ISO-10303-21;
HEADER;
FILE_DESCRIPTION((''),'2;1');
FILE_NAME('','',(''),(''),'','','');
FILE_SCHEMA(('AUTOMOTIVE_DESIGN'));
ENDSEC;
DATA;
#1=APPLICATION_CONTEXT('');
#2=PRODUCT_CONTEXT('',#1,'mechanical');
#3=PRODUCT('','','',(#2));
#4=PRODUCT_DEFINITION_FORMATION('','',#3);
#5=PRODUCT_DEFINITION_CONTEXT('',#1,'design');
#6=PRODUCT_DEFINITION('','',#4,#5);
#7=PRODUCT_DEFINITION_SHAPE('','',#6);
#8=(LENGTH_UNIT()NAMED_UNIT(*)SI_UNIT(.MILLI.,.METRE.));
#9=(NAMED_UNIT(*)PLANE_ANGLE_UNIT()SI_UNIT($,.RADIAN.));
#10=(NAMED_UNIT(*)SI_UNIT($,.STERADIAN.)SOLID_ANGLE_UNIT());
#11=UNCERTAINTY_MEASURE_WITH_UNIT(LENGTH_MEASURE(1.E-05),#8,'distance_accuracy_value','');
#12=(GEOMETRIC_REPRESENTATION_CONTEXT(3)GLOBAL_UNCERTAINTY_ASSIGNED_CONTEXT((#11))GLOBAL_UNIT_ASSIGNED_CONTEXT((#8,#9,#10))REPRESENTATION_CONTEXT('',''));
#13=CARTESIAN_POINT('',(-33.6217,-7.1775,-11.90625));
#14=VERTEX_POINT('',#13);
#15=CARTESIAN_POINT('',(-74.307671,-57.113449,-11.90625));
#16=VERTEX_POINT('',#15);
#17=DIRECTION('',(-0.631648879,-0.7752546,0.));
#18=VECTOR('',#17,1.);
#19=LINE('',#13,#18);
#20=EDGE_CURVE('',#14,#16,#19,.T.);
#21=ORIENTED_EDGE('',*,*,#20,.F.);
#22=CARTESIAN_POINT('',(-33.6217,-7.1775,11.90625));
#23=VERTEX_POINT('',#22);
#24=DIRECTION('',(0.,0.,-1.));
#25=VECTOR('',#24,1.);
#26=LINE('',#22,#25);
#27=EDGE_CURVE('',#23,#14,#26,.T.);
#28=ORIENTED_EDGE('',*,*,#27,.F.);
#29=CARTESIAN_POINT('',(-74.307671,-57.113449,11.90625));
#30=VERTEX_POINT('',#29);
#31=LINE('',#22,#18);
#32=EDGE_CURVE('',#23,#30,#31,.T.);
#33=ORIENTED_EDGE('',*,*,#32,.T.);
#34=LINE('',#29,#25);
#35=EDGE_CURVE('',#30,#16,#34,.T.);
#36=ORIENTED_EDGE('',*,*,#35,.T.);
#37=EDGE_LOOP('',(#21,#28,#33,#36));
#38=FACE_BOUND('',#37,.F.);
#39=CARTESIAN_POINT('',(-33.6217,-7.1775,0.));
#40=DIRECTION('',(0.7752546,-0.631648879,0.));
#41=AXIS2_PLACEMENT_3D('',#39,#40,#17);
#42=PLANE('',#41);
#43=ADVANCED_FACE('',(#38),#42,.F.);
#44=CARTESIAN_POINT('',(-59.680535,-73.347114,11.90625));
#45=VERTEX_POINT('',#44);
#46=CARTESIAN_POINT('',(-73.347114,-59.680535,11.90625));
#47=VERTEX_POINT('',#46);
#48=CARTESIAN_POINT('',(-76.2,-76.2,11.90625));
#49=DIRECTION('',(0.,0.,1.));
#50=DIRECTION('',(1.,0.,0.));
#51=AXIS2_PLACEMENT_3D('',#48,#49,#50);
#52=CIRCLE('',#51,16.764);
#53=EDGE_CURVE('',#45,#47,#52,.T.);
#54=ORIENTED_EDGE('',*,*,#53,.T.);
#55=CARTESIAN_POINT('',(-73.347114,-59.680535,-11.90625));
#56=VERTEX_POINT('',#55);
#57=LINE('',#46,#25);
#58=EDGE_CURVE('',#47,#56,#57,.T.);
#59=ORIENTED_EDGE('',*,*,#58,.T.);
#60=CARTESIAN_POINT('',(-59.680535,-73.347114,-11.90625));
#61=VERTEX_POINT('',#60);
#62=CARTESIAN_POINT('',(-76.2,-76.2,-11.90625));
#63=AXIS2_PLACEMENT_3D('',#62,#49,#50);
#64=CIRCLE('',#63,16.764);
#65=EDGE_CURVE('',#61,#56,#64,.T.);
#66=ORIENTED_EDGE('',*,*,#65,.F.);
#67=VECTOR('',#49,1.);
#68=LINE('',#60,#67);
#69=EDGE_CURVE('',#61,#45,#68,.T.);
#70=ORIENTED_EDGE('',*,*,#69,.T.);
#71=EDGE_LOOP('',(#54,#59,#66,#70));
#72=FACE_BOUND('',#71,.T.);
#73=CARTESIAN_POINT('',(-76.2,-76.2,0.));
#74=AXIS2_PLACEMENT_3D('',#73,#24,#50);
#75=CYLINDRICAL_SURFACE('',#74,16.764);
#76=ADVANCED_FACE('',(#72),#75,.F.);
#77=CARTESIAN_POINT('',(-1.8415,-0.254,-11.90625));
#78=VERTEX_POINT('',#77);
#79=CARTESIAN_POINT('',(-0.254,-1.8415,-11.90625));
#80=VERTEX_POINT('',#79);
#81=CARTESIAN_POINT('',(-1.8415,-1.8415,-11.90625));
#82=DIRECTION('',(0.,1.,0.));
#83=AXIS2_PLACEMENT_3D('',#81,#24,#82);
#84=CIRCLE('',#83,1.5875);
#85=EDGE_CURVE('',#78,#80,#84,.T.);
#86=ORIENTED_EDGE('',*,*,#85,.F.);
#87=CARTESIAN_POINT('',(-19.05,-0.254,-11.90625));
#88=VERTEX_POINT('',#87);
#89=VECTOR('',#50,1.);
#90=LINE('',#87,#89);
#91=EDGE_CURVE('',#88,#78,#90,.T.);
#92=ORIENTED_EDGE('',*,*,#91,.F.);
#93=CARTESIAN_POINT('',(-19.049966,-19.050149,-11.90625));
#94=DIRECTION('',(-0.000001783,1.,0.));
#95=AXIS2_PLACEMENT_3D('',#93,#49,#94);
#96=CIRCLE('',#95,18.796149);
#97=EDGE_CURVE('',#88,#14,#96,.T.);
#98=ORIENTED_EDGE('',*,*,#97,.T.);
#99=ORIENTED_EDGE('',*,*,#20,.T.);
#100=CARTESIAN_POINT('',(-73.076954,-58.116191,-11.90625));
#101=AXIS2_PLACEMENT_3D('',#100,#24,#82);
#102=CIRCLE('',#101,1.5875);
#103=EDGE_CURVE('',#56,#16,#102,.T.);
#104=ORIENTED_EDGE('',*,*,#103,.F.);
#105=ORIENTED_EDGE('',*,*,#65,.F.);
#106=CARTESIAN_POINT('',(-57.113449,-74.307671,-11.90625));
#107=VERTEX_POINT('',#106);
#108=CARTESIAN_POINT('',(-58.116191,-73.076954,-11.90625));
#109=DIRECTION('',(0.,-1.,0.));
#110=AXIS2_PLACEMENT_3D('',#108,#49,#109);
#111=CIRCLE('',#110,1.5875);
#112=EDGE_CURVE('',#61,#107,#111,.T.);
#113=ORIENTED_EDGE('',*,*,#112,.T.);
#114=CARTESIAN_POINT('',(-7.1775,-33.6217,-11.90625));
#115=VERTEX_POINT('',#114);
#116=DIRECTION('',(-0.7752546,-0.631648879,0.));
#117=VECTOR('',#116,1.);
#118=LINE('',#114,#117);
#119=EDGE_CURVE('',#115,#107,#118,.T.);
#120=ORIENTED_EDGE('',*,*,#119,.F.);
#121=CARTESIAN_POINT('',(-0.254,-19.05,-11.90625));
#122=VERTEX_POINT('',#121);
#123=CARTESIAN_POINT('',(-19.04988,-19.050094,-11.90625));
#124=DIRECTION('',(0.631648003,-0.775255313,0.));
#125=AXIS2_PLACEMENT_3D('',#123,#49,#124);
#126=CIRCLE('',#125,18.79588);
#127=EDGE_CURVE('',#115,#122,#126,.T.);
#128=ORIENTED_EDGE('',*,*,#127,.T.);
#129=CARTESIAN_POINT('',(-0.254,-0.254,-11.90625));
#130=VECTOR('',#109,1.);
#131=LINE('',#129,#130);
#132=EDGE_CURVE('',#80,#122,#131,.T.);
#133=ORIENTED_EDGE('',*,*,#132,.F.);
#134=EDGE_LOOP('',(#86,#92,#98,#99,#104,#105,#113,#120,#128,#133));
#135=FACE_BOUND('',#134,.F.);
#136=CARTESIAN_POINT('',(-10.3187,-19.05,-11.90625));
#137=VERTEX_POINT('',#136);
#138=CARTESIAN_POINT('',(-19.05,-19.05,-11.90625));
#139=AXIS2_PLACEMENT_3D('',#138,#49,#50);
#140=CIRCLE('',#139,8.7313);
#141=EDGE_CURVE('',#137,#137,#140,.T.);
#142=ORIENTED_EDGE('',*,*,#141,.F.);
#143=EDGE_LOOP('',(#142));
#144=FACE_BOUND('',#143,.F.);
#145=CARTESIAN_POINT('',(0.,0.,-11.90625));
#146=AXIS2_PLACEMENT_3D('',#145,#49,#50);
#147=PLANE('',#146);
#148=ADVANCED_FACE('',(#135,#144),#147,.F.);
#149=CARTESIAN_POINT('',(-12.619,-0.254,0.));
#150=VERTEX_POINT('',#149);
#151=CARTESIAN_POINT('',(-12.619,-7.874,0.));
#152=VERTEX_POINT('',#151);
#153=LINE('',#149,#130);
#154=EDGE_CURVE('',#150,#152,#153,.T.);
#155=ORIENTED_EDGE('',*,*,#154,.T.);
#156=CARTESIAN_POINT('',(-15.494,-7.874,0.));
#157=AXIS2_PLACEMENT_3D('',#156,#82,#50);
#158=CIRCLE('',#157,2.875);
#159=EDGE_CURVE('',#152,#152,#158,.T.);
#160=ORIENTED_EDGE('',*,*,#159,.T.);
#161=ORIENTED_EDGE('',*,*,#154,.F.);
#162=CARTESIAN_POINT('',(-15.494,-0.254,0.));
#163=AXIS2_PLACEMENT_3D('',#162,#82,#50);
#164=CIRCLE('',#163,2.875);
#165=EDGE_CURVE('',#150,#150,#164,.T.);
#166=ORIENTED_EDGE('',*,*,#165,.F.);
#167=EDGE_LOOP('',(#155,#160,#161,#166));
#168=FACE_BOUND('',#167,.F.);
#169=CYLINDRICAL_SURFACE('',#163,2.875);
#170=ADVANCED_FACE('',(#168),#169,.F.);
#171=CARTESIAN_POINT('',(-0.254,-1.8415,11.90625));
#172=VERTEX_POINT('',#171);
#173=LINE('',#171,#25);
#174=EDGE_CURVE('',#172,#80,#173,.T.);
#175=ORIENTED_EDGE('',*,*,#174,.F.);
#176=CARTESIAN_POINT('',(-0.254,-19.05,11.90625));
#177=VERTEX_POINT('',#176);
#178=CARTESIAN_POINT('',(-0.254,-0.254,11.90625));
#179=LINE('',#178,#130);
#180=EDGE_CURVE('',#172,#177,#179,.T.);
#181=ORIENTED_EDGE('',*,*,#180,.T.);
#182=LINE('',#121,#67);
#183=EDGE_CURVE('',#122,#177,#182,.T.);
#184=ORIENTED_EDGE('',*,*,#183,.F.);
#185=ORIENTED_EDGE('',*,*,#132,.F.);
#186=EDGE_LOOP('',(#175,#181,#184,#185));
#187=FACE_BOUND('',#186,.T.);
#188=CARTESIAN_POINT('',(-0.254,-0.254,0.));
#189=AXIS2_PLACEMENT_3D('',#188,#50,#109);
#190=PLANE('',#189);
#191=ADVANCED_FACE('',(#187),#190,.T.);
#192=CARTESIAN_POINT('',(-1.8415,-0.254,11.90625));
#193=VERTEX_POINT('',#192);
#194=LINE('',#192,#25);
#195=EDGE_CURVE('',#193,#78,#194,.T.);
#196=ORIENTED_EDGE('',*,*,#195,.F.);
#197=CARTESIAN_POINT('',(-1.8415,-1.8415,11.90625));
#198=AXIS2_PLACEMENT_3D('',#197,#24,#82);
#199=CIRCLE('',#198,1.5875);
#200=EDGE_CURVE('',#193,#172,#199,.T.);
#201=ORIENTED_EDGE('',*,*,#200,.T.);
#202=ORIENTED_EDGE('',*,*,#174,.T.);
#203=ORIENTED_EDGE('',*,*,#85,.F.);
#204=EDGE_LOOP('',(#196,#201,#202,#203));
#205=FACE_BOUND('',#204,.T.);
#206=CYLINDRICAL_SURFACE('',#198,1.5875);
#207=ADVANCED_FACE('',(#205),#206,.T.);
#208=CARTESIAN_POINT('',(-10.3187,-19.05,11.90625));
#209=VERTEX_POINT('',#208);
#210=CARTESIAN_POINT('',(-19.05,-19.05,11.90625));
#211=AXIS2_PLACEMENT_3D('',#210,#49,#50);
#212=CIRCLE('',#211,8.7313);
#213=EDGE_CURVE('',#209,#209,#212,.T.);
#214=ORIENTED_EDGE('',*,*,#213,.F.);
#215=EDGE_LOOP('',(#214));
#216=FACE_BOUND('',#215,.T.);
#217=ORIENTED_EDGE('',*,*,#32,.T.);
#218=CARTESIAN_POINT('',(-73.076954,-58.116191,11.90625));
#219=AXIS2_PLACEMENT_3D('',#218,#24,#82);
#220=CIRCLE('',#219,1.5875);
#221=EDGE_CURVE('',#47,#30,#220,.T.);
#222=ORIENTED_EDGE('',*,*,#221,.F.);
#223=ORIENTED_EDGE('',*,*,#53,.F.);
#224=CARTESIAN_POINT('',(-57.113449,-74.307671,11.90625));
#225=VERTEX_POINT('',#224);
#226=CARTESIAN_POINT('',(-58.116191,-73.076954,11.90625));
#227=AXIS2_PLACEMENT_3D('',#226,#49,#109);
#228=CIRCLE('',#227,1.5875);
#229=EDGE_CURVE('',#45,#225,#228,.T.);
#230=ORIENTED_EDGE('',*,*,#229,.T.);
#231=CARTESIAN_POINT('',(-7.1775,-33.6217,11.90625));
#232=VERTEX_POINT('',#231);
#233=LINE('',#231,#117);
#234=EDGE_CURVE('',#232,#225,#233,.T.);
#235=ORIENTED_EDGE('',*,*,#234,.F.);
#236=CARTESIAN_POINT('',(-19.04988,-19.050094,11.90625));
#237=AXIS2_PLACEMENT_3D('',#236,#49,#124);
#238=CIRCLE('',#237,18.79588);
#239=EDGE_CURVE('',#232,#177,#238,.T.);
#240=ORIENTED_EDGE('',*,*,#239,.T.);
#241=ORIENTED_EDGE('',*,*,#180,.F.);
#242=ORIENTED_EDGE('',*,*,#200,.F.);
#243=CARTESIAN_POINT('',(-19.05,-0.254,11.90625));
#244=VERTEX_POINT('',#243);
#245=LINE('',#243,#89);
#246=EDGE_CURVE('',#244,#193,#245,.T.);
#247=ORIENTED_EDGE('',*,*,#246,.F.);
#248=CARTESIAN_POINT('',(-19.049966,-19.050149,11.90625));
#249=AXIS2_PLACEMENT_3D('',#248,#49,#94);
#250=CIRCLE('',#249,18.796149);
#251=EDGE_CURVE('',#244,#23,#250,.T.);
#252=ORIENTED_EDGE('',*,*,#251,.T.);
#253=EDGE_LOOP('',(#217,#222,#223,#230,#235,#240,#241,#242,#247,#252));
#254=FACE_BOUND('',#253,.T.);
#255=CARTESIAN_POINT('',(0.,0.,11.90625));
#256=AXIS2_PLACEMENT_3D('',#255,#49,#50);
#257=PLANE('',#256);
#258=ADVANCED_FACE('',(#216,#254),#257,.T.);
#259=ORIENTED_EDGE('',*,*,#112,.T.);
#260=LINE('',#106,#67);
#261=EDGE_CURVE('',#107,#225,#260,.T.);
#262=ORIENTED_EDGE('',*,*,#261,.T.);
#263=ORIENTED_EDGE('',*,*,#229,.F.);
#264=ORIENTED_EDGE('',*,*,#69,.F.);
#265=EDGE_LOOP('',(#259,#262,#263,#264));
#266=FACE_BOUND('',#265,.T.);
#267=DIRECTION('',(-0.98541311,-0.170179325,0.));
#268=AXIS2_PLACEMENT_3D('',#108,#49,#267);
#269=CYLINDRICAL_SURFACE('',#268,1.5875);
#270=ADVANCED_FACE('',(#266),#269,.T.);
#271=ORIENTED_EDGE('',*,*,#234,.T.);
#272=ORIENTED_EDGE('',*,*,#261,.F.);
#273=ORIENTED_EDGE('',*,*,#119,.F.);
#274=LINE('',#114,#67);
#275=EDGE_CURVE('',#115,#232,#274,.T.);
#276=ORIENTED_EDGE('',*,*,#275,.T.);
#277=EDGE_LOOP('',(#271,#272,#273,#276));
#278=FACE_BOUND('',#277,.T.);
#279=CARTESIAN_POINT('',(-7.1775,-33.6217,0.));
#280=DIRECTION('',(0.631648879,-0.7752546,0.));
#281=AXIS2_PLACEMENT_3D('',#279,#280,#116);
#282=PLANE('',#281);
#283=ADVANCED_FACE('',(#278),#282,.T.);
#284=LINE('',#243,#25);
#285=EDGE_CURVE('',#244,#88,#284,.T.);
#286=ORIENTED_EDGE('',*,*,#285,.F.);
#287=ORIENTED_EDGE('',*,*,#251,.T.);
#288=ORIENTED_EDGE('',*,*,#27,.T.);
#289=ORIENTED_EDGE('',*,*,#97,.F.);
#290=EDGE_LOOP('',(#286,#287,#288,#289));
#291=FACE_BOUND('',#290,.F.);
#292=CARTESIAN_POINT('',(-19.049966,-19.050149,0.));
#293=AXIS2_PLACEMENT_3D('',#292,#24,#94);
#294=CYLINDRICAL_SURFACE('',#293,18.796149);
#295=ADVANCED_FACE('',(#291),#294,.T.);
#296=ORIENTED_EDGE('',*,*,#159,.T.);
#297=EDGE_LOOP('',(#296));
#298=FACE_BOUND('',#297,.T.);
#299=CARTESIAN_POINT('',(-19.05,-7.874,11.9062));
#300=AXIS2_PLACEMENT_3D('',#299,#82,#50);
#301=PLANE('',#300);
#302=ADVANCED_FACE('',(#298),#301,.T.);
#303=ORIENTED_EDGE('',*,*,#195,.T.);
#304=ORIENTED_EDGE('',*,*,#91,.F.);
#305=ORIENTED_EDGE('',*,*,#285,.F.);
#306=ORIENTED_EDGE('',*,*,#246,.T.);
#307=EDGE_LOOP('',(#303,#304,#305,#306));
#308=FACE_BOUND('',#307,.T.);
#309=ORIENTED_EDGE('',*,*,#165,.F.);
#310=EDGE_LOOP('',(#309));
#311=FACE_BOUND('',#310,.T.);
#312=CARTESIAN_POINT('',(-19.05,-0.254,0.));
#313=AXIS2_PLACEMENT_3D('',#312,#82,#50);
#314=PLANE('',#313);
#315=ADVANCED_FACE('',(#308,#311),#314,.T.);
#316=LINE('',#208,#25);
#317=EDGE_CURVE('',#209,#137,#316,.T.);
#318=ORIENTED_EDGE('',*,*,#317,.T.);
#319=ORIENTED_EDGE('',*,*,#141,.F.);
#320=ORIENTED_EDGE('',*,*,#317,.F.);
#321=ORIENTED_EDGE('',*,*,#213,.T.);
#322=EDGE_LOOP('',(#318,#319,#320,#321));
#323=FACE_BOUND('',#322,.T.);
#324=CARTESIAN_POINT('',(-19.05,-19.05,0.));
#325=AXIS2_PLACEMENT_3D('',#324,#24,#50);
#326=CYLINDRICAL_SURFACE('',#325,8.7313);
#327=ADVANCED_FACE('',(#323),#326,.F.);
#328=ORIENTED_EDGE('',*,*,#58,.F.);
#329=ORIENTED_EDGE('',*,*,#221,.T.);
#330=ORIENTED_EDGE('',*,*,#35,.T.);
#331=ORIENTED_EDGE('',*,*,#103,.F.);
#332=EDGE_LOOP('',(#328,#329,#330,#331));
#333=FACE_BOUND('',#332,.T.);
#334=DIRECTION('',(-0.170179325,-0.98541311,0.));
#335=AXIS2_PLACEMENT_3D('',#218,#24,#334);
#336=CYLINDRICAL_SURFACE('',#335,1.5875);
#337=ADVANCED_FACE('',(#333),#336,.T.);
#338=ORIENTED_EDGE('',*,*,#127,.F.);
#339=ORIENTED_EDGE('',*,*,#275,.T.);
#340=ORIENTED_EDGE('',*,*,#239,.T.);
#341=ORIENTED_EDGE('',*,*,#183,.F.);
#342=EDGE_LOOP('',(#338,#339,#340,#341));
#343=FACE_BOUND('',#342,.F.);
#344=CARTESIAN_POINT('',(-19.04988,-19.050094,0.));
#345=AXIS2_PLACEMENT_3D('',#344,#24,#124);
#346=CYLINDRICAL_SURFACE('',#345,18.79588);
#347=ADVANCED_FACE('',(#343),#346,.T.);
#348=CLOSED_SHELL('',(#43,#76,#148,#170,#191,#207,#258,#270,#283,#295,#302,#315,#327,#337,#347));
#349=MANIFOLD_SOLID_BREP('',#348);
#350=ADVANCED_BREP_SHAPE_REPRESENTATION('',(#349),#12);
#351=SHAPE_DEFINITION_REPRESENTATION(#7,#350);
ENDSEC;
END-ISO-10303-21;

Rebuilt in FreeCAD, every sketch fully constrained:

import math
import FreeCAD as App
import Part
import Sketcher
from FreeCAD import Vector
Q = App.Units.Quantity


def edges_at(feature, points):
    """Names of the edges that pass closest to the given points."""
    edges = feature.Shape.Edges
    near = lambda p: min(range(len(edges)), key=lambda i: edges[i].distToShape(Part.Vertex(*p))[0])
    return sorted({f"Edge{near(p) + 1}" for p in points})

doc = App.newDocument("Part")
params = doc.addObject("Spreadsheet::Sheet", "Params")
for row, (alias, value) in enumerate([
    ("sketch1_radius", "0.66 in"),
    ("sketch1_diameter", "0.6875 in"),
    ("sketch1_radius2", "0.74 in"),
    ("pad1_length", "0.9375 in"),
    ("fillet_radius", "0.0625 in"),
    ("pocket1_length", "0.3 in"),
], start=1):
    params.set(f"A{row}", alias)
    params.set(f"B{row}", "=" + value)
    params.setAlias(f"B{row}", alias)

body = doc.addObject("PartDesign::Body", "Body")

# Sketch on XY plane
sketch1 = doc.addObject("Sketcher::SketchObject", "Sketch")
body.addObject(sketch1)
sketch1.AttachmentSupport = (doc.XY_Plane, [""])
sketch1.MapMode = "FlatFace"
sketch1.addGeometry([
    Part.ArcOfCircle(Part.Circle(Vector(-76, -76, 0), Vector(0, 0, 1), 17), math.radians(0), math.radians(90)),  # 0
    Part.LineSegment(Vector(-59, -76, 0), Vector(-7, -34, 0)),  # 1
    Part.ArcOfCircle(Part.Circle(Vector(-19, -19, 0), Vector(0, 0, 1), 19), math.radians(-51), math.radians(0)),  # 2
    Part.LineSegment(Vector(0, -19, 0), Vector(0, 0, 0)),  # 3
    Part.LineSegment(Vector(0, 0, 0), Vector(-19, 0, 0)),  # 4
    Part.ArcOfCircle(Part.Circle(Vector(-19, -19, 0), Vector(0, 0, 1), 19), math.radians(90), math.radians(141)),  # 5
    Part.LineSegment(Vector(-34, -7, 0), Vector(-76, -59, 0)),  # 6
    Part.Circle(Vector(-19, -19, 0), Vector(0, 0, 1), 9),  # 7
], False)
sketch1.addConstraint([
    Sketcher.Constraint("Coincident", 0, 1, 1, 1),
    Sketcher.Constraint("Tangent", 1, 2, 2, 1),
    Sketcher.Constraint("Tangent", 2, 2, 3, 1),
    Sketcher.Constraint("Coincident", 3, 2, 4, 1),
    Sketcher.Constraint("Tangent", 4, 2, 5, 1),
    Sketcher.Constraint("Tangent", 5, 2, 6, 1),
    Sketcher.Constraint("Coincident", 6, 2, 0, 2),
    Sketcher.Constraint("Vertical", 3),
    Sketcher.Constraint("Horizontal", 4),
    Sketcher.Constraint("Coincident", 5, 3, 2, 3),
    Sketcher.Constraint("Coincident", 7, 3, 2, 3),
    Sketcher.Constraint("Equal", 2, 5),
    Sketcher.Constraint("Vertical", 0, 3, 6, 2),
    Sketcher.Constraint("Equal", 1, 6),
    Sketcher.Constraint("Radius", 0, Q("0.66 in")),
    Sketcher.Constraint("Diameter", 7, Q("0.6875 in")),
    Sketcher.Constraint("DistanceX", 2, 2, -1, 1, Q("0.01 in")),
    Sketcher.Constraint("DistanceY", 3, 2, -1, 1, Q("0.01 in")),
    Sketcher.Constraint("Radius", 2, Q("0.74 in")),
    Sketcher.Constraint("DistanceX", 0, 3, -1, 1, Q("3 in")),
    Sketcher.Constraint("DistanceY", 0, 3, -1, 1, Q("3 in")),
])
sketch1.setExpression("Constraints[14]", "Params.sketch1_radius")
sketch1.setExpression("Constraints[15]", "Params.sketch1_diameter")
sketch1.setExpression("Constraints[18]", "Params.sketch1_radius2")
pad1 = doc.addObject("PartDesign::Pad", "Pad")
body.addObject(pad1)
pad1.Profile = sketch1
pad1.setExpression("Length", "Params.pad1_length")
pad1.Midplane = True
doc.recompute()

fillet = doc.addObject("PartDesign::Fillet", "Fillet")
body.addObject(fillet)
fillet.Base = (pad1, edges_at(pad1, [(-0.254, -0.254, 0), (-76.2, -59.436, 0), (-59.436, -76.2, 0)]))
fillet.setExpression("Radius", "Params.fillet_radius")

# Sketch on XZ plane
sketch2 = doc.addObject("Sketcher::SketchObject", "Sketch001")
body.addObject(sketch2)
sketch2.AttachmentSupport = (doc.XZ_Plane, [""])
sketch2.MapMode = "FlatFace"
sketch2.AttachmentOffset = App.Placement(Vector(0, 0, 0.01 * 25.4), App.Rotation())
sketch2.addGeometry(Part.Circle(Vector(-15.5, 0, 0), Vector(0, 0, 1), 2.9), False)
sketch2.addConstraint([
    Sketcher.Constraint("PointOnObject", 0, 3, -1),
    Sketcher.Constraint("Diameter", 0, Q("5.75 mm")),
    Sketcher.Constraint("DistanceX", 0, 3, -1, 1, Q("0.61 in")),
])
pocket1 = doc.addObject("PartDesign::Pocket", "Pocket")
body.addObject(pocket1)
pocket1.Profile = sketch2
pocket1.setExpression("Length", "Params.pocket1_length")
pocket1.Reversed = True

doc.recompute()
